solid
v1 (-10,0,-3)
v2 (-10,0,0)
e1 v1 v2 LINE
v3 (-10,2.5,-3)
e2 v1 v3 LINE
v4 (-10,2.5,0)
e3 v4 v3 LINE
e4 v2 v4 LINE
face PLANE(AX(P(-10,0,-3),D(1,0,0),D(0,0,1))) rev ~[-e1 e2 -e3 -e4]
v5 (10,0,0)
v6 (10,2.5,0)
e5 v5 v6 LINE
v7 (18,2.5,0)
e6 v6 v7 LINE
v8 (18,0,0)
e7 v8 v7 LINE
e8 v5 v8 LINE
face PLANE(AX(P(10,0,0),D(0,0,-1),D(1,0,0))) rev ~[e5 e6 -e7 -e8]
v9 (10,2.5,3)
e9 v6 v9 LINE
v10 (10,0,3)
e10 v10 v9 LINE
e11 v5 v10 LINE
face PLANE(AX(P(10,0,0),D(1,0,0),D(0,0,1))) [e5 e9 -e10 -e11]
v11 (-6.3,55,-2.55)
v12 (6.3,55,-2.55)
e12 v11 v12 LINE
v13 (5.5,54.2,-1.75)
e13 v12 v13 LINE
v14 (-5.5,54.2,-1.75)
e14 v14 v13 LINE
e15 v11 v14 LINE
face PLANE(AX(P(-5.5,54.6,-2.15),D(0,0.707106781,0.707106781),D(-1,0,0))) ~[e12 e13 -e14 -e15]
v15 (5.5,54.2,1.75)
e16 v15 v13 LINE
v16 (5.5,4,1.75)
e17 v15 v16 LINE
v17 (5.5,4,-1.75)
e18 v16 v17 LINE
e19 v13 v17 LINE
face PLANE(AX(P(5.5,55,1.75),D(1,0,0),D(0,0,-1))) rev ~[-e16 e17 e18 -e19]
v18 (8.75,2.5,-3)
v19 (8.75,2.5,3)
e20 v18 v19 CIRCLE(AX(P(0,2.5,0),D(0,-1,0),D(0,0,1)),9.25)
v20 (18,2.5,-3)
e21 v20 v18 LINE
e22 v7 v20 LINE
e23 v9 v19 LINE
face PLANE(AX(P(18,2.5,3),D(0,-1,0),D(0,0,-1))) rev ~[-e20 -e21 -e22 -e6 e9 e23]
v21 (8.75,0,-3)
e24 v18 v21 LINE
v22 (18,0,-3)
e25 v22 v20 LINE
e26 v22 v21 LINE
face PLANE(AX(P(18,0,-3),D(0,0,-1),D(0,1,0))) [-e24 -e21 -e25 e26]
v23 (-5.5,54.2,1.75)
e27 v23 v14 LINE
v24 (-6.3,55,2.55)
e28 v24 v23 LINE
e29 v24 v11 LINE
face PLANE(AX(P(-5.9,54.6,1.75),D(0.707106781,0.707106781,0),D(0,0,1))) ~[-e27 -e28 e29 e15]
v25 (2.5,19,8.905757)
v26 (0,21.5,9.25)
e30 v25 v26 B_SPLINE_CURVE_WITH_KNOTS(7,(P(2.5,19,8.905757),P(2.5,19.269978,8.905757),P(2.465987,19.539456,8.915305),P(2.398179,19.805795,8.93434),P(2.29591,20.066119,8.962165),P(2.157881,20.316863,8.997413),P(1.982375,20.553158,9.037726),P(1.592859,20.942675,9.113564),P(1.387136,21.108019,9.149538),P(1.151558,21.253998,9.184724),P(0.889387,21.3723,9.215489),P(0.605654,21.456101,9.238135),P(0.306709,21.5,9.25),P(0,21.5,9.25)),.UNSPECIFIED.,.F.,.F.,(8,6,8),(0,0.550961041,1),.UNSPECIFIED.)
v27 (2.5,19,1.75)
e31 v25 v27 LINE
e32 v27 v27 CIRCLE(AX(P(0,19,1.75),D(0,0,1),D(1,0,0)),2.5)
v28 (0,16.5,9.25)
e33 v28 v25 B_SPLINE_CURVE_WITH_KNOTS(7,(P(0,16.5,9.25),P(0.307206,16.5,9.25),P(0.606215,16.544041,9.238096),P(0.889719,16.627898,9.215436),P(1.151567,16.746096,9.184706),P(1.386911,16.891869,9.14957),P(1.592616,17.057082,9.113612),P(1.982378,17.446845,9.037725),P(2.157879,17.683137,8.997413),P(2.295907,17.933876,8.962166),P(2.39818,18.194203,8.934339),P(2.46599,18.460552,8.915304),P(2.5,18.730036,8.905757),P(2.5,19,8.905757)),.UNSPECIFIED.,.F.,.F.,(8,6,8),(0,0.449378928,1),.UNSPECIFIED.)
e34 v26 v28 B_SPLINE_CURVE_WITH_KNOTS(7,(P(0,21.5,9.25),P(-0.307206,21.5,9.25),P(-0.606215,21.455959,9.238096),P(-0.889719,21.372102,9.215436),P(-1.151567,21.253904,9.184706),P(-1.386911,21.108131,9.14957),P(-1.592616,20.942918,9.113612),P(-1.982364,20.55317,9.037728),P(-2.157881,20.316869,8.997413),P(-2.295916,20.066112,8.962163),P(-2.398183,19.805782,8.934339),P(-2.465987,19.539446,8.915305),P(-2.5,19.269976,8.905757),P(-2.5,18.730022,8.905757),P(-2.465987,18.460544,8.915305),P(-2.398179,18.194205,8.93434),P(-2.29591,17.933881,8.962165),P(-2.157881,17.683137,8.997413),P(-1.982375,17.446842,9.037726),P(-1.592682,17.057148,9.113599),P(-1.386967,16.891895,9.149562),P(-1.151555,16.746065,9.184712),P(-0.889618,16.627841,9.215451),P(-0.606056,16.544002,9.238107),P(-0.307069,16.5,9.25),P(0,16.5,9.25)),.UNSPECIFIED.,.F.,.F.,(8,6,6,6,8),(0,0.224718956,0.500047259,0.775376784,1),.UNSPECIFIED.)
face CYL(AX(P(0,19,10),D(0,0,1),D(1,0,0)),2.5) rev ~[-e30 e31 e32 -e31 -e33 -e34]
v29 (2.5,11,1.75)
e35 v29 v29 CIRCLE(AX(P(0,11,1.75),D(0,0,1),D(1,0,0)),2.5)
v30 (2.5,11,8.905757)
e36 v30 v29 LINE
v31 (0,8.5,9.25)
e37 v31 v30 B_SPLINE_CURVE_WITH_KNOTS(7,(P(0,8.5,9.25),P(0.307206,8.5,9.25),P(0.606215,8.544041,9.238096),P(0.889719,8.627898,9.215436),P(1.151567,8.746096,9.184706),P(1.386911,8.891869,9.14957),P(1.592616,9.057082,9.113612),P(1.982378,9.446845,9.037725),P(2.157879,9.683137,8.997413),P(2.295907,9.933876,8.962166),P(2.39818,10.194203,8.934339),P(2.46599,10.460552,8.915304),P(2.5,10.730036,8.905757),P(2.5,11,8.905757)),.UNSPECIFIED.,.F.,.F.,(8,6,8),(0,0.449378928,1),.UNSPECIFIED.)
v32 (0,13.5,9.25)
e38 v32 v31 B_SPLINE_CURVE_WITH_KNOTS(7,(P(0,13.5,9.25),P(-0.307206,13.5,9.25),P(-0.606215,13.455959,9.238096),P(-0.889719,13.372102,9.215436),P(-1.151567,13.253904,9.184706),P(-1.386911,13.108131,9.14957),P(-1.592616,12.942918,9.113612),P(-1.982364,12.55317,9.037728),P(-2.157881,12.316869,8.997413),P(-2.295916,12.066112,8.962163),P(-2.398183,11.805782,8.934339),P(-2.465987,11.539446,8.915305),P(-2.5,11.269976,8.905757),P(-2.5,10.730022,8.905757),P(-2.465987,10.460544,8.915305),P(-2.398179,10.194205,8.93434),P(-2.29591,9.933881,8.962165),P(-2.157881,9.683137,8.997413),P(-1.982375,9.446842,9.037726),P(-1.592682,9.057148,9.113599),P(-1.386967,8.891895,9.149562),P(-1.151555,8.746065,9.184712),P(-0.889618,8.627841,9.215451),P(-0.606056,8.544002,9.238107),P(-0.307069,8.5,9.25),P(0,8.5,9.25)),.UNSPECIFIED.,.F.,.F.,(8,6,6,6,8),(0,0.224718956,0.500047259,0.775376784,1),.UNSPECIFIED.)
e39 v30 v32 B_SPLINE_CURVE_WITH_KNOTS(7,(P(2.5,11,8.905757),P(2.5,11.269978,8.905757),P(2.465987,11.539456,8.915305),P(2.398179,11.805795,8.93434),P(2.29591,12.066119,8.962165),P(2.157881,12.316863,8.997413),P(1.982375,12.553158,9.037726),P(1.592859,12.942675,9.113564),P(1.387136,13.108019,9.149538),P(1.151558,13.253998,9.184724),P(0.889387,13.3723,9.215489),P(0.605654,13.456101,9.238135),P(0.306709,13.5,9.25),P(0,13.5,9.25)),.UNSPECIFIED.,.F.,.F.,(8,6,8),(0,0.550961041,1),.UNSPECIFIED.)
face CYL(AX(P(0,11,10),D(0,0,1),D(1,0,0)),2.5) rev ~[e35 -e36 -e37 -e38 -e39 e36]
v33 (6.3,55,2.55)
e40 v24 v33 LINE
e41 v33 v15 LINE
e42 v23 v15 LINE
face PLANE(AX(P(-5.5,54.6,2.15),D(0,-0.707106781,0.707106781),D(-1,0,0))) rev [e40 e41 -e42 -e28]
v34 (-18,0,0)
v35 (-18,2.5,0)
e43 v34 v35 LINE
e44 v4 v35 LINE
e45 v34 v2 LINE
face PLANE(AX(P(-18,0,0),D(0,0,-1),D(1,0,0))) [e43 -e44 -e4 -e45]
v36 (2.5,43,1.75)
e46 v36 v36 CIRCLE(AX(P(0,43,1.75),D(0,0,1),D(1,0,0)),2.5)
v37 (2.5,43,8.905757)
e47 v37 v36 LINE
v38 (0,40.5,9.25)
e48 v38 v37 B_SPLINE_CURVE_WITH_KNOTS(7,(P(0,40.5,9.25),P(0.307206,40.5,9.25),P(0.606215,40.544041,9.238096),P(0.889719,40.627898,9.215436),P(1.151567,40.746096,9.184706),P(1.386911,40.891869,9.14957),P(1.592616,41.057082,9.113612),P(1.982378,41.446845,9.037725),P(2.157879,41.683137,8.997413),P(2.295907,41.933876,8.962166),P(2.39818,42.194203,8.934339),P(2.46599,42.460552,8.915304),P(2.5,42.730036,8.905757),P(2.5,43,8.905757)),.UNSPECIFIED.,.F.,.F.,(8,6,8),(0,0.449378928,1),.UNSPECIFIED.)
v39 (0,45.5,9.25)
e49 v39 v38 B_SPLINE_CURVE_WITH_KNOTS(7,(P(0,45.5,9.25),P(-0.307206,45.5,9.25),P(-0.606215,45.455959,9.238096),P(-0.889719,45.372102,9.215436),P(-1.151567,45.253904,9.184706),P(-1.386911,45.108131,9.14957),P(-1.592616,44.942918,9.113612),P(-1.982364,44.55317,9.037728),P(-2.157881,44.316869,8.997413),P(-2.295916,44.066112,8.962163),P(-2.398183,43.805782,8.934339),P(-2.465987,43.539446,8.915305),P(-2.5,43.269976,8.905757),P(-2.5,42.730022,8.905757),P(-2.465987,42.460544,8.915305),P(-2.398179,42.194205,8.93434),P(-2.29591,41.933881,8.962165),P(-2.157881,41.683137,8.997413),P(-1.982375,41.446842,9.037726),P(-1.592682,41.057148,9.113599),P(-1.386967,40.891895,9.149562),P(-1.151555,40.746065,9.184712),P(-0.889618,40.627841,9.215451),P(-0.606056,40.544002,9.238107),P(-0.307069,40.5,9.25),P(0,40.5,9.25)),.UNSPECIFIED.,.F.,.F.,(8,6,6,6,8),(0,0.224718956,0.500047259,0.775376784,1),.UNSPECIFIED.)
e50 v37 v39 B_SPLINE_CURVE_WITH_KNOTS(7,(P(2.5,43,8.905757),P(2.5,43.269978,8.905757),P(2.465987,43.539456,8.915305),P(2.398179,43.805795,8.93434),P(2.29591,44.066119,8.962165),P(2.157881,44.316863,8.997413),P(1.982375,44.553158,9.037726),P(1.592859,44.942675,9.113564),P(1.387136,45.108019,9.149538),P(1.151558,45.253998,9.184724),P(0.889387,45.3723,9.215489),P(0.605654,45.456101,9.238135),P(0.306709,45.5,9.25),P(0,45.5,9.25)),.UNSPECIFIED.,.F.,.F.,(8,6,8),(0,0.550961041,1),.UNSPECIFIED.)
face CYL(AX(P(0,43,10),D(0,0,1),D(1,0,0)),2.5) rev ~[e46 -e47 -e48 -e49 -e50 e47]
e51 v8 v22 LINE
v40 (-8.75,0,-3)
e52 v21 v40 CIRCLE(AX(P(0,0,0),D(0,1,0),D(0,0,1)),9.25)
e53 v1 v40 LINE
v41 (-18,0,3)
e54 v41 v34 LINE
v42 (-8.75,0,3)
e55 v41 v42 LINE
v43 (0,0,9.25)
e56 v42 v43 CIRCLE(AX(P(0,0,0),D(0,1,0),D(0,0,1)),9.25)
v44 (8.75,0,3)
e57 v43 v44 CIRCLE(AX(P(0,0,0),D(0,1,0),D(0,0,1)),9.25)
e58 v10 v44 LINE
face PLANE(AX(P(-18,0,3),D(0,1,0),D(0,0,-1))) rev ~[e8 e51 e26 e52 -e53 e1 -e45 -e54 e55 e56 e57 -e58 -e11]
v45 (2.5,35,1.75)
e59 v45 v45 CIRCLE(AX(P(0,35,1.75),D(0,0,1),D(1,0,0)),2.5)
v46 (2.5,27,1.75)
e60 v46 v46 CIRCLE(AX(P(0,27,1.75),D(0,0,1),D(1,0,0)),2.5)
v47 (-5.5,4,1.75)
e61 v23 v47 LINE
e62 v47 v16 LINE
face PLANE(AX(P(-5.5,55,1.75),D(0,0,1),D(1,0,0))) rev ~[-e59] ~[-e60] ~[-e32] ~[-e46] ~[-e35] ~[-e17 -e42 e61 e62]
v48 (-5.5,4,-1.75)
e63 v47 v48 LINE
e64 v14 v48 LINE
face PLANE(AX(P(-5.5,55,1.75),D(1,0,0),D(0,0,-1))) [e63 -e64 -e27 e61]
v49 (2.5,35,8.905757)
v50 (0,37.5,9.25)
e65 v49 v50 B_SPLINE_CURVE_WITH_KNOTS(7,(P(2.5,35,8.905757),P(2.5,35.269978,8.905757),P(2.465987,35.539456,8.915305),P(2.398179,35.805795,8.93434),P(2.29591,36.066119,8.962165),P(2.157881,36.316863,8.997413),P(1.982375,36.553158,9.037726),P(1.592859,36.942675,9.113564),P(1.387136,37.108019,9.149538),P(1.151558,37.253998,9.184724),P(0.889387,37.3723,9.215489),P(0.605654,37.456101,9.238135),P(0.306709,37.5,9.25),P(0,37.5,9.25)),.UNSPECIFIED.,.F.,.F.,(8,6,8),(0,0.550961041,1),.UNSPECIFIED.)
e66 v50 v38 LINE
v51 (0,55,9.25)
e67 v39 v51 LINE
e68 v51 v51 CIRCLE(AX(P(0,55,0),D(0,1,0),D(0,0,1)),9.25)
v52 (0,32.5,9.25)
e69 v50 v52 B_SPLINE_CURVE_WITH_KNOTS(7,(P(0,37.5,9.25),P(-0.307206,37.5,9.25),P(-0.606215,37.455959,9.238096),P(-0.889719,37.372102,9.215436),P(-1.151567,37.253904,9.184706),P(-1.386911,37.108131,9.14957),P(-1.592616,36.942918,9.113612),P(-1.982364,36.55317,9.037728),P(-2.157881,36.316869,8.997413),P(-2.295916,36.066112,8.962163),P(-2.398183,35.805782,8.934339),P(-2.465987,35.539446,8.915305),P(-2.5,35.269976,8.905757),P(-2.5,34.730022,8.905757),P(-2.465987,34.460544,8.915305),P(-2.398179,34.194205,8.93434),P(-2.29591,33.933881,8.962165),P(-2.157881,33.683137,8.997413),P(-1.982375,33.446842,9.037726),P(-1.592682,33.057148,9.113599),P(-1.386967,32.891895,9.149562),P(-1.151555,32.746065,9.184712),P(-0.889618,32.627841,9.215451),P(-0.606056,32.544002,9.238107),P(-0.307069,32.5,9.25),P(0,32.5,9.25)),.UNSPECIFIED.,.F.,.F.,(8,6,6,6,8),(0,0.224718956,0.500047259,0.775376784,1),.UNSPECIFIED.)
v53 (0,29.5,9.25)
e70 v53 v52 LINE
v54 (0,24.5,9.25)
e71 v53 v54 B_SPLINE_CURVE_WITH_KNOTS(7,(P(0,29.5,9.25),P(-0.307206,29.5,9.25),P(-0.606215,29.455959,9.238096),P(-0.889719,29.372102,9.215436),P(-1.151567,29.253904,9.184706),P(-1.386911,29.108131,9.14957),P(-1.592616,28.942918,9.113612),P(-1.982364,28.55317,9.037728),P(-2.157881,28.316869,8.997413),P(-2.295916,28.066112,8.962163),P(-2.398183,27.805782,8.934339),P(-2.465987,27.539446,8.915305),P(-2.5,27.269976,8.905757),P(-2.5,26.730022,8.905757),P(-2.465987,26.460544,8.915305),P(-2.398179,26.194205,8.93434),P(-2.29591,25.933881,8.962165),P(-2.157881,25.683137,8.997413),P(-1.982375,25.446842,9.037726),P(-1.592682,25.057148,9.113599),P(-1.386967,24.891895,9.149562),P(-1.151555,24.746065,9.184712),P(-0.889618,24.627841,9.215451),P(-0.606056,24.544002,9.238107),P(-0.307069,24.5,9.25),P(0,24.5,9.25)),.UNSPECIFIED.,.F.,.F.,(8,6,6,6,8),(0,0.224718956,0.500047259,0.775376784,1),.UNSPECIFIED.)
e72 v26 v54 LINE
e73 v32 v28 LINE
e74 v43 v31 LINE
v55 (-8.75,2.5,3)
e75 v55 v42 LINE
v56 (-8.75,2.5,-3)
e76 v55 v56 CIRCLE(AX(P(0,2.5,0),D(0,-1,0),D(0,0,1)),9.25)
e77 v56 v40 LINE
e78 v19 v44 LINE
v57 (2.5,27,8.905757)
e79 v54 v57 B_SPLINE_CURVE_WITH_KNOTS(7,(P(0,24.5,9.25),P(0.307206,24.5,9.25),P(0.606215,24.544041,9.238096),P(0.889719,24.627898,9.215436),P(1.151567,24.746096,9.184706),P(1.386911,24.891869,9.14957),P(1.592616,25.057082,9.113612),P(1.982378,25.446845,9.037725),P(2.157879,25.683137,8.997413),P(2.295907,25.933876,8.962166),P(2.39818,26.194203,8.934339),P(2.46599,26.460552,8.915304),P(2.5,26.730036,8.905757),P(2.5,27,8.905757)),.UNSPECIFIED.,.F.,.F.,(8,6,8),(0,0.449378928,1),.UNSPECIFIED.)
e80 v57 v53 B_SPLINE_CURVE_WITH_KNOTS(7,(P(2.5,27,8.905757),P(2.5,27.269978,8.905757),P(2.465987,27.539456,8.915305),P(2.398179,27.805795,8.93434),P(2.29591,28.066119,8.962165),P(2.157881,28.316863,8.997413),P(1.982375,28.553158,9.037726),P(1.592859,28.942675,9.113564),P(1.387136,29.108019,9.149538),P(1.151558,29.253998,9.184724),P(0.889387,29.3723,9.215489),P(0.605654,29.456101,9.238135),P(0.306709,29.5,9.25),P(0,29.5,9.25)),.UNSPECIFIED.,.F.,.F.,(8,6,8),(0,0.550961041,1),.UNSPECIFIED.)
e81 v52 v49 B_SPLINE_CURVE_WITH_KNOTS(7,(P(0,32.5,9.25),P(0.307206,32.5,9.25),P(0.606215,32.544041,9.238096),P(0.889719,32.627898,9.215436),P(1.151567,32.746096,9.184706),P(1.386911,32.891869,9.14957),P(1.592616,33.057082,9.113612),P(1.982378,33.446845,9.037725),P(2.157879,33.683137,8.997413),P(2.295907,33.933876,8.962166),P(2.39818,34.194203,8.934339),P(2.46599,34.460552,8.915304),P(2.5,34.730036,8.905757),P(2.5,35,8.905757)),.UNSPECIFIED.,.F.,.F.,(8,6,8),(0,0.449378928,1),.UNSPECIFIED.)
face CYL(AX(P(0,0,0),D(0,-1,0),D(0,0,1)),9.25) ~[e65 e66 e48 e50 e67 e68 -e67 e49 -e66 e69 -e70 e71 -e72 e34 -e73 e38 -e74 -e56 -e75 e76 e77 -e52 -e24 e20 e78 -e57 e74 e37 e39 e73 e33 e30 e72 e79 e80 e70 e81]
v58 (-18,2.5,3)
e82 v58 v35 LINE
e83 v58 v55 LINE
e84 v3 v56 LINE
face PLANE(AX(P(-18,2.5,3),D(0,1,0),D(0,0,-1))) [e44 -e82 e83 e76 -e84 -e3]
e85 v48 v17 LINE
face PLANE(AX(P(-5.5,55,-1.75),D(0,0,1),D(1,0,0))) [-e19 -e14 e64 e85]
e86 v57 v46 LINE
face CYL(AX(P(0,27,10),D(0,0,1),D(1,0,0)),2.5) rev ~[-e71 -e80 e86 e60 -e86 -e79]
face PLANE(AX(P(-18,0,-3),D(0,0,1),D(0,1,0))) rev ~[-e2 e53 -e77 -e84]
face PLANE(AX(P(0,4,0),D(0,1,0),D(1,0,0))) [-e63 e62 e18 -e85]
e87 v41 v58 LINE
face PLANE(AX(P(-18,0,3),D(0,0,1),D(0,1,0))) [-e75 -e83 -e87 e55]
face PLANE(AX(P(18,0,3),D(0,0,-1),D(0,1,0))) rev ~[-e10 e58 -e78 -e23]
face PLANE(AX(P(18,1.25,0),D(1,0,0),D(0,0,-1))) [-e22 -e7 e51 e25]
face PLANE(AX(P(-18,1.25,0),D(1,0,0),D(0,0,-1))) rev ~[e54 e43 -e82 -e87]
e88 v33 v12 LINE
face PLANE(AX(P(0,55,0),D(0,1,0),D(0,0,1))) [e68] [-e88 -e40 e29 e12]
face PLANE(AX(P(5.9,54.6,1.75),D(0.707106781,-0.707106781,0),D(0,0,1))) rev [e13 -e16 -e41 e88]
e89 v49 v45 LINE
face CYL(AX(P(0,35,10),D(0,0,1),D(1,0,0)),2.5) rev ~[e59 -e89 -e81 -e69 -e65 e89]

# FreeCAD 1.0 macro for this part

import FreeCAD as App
import Part
import Sketcher

V = App.Vector
Q = App.Units.Quantity


def edges_at(feature, points):
    """Names of the edges that pass closest to the given points."""
    edges = feature.Shape.Edges
    near = lambda p: min(range(len(edges)), key=lambda i: edges[i].distToShape(Part.Vertex(*p))[0])
    return sorted({f"Edge{near(p) + 1}" for p in points})


def add_polygon(sketch, points):
    """Adds a closed chain of lines whose ends are joined by coincident constraints."""
    first, n = sketch.GeometryCount, len(points)
    for a, b in zip(points, points[1:] + points[:1]):
        sketch.addGeometry(Part.LineSegment(App.Vector(*a, 0), App.Vector(*b, 0)), False)
    for i in range(n):
        sketch.addConstraint(Sketcher.Constraint("Coincident", first + i, 2, first + (i + 1) % n, 1))

doc = App.newDocument("Part")
body = doc.addObject("PartDesign::Body", "Body")

# Sketch on XZ plane
sketch1 = doc.addObject("Sketcher::SketchObject", "Sketch")
body.addObject(sketch1)
sketch1.AttachmentSupport = (doc.XZ_Plane, [""])
sketch1.MapMode = "FlatFace"
sketch1.addGeometry(Part.Circle(V(0, 0, 0), V(0, 0, 1), 9), False)
sketch1.addConstraint(Sketcher.Constraint("Coincident", 0, 3, -1, 1))
sketch1.addConstraint(Sketcher.Constraint("Diameter", 0, Q("18.5 mm")))
pad1 = doc.addObject("PartDesign::Pad", "Pad")
body.addObject(pad1)
pad1.Profile = sketch1
pad1.Length = 55
pad1.Reversed = True

# Sketch on XZ plane
sketch2 = doc.addObject("Sketcher::SketchObject", "Sketch001")
body.addObject(sketch2)
sketch2.AttachmentSupport = (doc.XZ_Plane, [""])
sketch2.MapMode = "FlatFace"
sketch2.AttachmentOffset = App.Placement(V(0, 0, -55), App.Rotation())
add_polygon(sketch2, [(-5.5, -1.8), (-5.5, 1.8), (5.5, 1.8), (5.5, -1.8)])  # lines 0-3
sketch2.addConstraint(Sketcher.Constraint("Vertical", 0))
sketch2.addConstraint(Sketcher.Constraint("Horizontal", 1))
sketch2.addConstraint(Sketcher.Constraint("Vertical", 2))
sketch2.addConstraint(Sketcher.Constraint("Horizontal", 3))
sketch2.addConstraint(Sketcher.Constraint("Symmetric", 0, 2, 2, 2, -1, 1))
sketch2.addConstraint(Sketcher.Constraint("DistanceX", 1, 1, 1, 2, Q("11 mm")))
sketch2.addConstraint(Sketcher.Constraint("DistanceY", 0, 1, 0, 2, Q("3.5 mm")))
pocket1 = doc.addObject("PartDesign::Pocket", "Pocket")
body.addObject(pocket1)
pocket1.Profile = sketch2
pocket1.Length = 51
pocket1.Reversed = True
doc.recompute()

chamfer = doc.addObject("PartDesign::Chamfer", "Chamfer")
body.addObject(chamfer)
chamfer.Base = (pocket1, edges_at(pocket1, [
    (5.5, 55, 0),
    (0, 55, -1.75),
    (-5.5, 55, 0),
    (0, 55, 1.75),
]))
chamfer.Size = 0.8

# Sketch on XY plane
sketch3 = doc.addObject("Sketcher::SketchObject", "Sketch002")
body.addObject(sketch3)
sketch3.AttachmentSupport = (doc.XY_Plane, [""])
sketch3.MapMode = "FlatFace"
sketch3.AttachmentOffset = App.Placement(V(0, 0, 10), App.Rotation())
sketch3.addGeometry(Part.Circle(V(0, 43, 0), V(0, 0, 1), 2.5), False)
sketch3.addGeometry(Part.Circle(V(0, 35, 0), V(0, 0, 1), 2.5), False)
sketch3.addGeometry(Part.Circle(V(0, 27, 0), V(0, 0, 1), 2.5), False)
sketch3.addGeometry(Part.Circle(V(0, 19, 0), V(0, 0, 1), 2.5), False)
sketch3.addGeometry(Part.Circle(V(0, 11, 0), V(0, 0, 1), 2.5), False)
sketch3.addConstraint(Sketcher.Constraint("Equal", 0, 1))
sketch3.addConstraint(Sketcher.Constraint("Equal", 1, 2))
sketch3.addConstraint(Sketcher.Constraint("Equal", 2, 3))
sketch3.addConstraint(Sketcher.Constraint("Equal", 3, 4))
sketch3.addConstraint(Sketcher.Constraint("PointOnObject", 0, 3, -2))
sketch3.addConstraint(Sketcher.Constraint("PointOnObject", 1, 3, -2))
sketch3.addConstraint(Sketcher.Constraint("PointOnObject", 2, 3, -2))
sketch3.addConstraint(Sketcher.Constraint("PointOnObject", 3, 3, -2))
sketch3.addConstraint(Sketcher.Constraint("PointOnObject", 4, 3, -2))
sketch3.addConstraint(Sketcher.Constraint("Diameter", 0, Q("5 mm")))
sketch3.addConstraint(Sketcher.Constraint("DistanceY", -1, 1, 0, 3, Q("43 mm")))
sketch3.addConstraint(Sketcher.Constraint("DistanceY", -1, 1, 1, 3, Q("35 mm")))
sketch3.addConstraint(Sketcher.Constraint("DistanceY", -1, 1, 2, 3, Q("27 mm")))
sketch3.addConstraint(Sketcher.Constraint("DistanceY", -1, 1, 3, 3, Q("19 mm")))
sketch3.addConstraint(Sketcher.Constraint("DistanceY", -1, 1, 4, 3, Q("11 mm")))
pocket2 = doc.addObject("PartDesign::Pocket", "Pocket001")
body.addObject(pocket2)
pocket2.Profile = sketch3
pocket2.Length = 10

# Sketch on YZ plane
sketch4 = doc.addObject("Sketcher::SketchObject", "Sketch003")
body.addObject(sketch4)
sketch4.AttachmentSupport = (doc.YZ_Plane, [""])
sketch4.MapMode = "FlatFace"
sketch4.AttachmentOffset = App.Placement(V(0, 0, 18), App.Rotation())
add_polygon(sketch4, [(2.5, 3), (0, 3), (0, -3), (2.5, -3)])  # lines 0-3
sketch4.addConstraint(Sketcher.Constraint("Horizontal", 0))
sketch4.addConstraint(Sketcher.Constraint("Vertical", 1))
sketch4.addConstraint(Sketcher.Constraint("Horizontal", 2))
sketch4.addConstraint(Sketcher.Constraint("Vertical", 3))
sketch4.addConstraint(Sketcher.Constraint("Symmetric", 0, 2, 1, 2, -1, 1))
sketch4.addConstraint(Sketcher.Constraint("DistanceY", 1, 2, 1, 1, Q("6 mm")))
sketch4.addConstraint(Sketcher.Constraint("DistanceX", 0, 2, 0, 1, Q("2.5 mm")))
pad2 = doc.addObject("PartDesign::Pad", "Pad001")
body.addObject(pad2)
pad2.Profile = sketch4
pad2.Length = 20
pad2.Reversed = True

# Sketch on YZ plane
sketch5 = doc.addObject("Sketcher::SketchObject", "Sketch004")
body.addObject(sketch5)
sketch5.AttachmentSupport = (doc.YZ_Plane, [""])
sketch5.MapMode = "FlatFace"
sketch5.AttachmentOffset = App.Placement(V(0, 0, -18), App.Rotation())
add_polygon(sketch5, [(2.5, 3), (0, 3), (0, -3), (2.5, -3)])  # lines 0-3
sketch5.addConstraint(Sketcher.Constraint("Horizontal", 0))
sketch5.addConstraint(Sketcher.Constraint("Vertical", 1))
sketch5.addConstraint(Sketcher.Constraint("Horizontal", 2))
sketch5.addConstraint(Sketcher.Constraint("Vertical", 3))
sketch5.addConstraint(Sketcher.Constraint("Symmetric", 0, 2, 1, 2, -1, 1))
sketch5.addConstraint(Sketcher.Constraint("DistanceY", 1, 2, 1, 1, Q("6 mm")))
sketch5.addConstraint(Sketcher.Constraint("DistanceX", 0, 2, 0, 1, Q("2.5 mm")))
pad3 = doc.addObject("PartDesign::Pad", "Pad002")
body.addObject(pad3)
pad3.Profile = sketch5
pad3.Length = 10

# Sketch on XZ plane
sketch6 = doc.addObject("Sketcher::SketchObject", "Sketch005")
body.addObject(sketch6)
sketch6.AttachmentSupport = (doc.XZ_Plane, [""])
sketch6.MapMode = "FlatFace"
add_polygon(sketch6, [(10, 3), (10, 0), (18, 0), (18, 3)])  # lines 0-3
add_polygon(sketch6, [(-18, 0), (-18, -3), (-10, -3), (-10, 0)])  # lines 4-7
sketch6.addConstraint(Sketcher.Constraint("Vertical", 0))
sketch6.addConstraint(Sketcher.Constraint("Horizontal", 1))
sketch6.addConstraint(Sketcher.Constraint("Vertical", 2))
sketch6.addConstraint(Sketcher.Constraint("Horizontal", 3))
sketch6.addConstraint(Sketcher.Constraint("Vertical", 4))
sketch6.addConstraint(Sketcher.Constraint("Horizontal", 5))
sketch6.addConstraint(Sketcher.Constraint("Vertical", 6))
sketch6.addConstraint(Sketcher.Constraint("Horizontal", 7))
sketch6.addConstraint(Sketcher.Constraint("Symmetric", 2, 2, 4, 2, -1, 1))
sketch6.addConstraint(Sketcher.Constraint("Symmetric", 0, 2, 6, 2, -1, 1))
sketch6.addConstraint(Sketcher.Constraint("PointOnObject", 0, 2, -1))
sketch6.addConstraint(Sketcher.Constraint("DistanceX", 1, 1, 1, 2, Q("8 mm")))
sketch6.addConstraint(Sketcher.Constraint("DistanceY", 0, 2, 0, 1, Q("3 mm")))
sketch6.addConstraint(Sketcher.Constraint("DistanceX", -1, 1, 0, 2, Q("10 mm")))
pocket3 = doc.addObject("PartDesign::Pocket", "Pocket002")
body.addObject(pocket3)
pocket3.Profile = sketch6
pocket3.Length = 10

doc.recompute()
